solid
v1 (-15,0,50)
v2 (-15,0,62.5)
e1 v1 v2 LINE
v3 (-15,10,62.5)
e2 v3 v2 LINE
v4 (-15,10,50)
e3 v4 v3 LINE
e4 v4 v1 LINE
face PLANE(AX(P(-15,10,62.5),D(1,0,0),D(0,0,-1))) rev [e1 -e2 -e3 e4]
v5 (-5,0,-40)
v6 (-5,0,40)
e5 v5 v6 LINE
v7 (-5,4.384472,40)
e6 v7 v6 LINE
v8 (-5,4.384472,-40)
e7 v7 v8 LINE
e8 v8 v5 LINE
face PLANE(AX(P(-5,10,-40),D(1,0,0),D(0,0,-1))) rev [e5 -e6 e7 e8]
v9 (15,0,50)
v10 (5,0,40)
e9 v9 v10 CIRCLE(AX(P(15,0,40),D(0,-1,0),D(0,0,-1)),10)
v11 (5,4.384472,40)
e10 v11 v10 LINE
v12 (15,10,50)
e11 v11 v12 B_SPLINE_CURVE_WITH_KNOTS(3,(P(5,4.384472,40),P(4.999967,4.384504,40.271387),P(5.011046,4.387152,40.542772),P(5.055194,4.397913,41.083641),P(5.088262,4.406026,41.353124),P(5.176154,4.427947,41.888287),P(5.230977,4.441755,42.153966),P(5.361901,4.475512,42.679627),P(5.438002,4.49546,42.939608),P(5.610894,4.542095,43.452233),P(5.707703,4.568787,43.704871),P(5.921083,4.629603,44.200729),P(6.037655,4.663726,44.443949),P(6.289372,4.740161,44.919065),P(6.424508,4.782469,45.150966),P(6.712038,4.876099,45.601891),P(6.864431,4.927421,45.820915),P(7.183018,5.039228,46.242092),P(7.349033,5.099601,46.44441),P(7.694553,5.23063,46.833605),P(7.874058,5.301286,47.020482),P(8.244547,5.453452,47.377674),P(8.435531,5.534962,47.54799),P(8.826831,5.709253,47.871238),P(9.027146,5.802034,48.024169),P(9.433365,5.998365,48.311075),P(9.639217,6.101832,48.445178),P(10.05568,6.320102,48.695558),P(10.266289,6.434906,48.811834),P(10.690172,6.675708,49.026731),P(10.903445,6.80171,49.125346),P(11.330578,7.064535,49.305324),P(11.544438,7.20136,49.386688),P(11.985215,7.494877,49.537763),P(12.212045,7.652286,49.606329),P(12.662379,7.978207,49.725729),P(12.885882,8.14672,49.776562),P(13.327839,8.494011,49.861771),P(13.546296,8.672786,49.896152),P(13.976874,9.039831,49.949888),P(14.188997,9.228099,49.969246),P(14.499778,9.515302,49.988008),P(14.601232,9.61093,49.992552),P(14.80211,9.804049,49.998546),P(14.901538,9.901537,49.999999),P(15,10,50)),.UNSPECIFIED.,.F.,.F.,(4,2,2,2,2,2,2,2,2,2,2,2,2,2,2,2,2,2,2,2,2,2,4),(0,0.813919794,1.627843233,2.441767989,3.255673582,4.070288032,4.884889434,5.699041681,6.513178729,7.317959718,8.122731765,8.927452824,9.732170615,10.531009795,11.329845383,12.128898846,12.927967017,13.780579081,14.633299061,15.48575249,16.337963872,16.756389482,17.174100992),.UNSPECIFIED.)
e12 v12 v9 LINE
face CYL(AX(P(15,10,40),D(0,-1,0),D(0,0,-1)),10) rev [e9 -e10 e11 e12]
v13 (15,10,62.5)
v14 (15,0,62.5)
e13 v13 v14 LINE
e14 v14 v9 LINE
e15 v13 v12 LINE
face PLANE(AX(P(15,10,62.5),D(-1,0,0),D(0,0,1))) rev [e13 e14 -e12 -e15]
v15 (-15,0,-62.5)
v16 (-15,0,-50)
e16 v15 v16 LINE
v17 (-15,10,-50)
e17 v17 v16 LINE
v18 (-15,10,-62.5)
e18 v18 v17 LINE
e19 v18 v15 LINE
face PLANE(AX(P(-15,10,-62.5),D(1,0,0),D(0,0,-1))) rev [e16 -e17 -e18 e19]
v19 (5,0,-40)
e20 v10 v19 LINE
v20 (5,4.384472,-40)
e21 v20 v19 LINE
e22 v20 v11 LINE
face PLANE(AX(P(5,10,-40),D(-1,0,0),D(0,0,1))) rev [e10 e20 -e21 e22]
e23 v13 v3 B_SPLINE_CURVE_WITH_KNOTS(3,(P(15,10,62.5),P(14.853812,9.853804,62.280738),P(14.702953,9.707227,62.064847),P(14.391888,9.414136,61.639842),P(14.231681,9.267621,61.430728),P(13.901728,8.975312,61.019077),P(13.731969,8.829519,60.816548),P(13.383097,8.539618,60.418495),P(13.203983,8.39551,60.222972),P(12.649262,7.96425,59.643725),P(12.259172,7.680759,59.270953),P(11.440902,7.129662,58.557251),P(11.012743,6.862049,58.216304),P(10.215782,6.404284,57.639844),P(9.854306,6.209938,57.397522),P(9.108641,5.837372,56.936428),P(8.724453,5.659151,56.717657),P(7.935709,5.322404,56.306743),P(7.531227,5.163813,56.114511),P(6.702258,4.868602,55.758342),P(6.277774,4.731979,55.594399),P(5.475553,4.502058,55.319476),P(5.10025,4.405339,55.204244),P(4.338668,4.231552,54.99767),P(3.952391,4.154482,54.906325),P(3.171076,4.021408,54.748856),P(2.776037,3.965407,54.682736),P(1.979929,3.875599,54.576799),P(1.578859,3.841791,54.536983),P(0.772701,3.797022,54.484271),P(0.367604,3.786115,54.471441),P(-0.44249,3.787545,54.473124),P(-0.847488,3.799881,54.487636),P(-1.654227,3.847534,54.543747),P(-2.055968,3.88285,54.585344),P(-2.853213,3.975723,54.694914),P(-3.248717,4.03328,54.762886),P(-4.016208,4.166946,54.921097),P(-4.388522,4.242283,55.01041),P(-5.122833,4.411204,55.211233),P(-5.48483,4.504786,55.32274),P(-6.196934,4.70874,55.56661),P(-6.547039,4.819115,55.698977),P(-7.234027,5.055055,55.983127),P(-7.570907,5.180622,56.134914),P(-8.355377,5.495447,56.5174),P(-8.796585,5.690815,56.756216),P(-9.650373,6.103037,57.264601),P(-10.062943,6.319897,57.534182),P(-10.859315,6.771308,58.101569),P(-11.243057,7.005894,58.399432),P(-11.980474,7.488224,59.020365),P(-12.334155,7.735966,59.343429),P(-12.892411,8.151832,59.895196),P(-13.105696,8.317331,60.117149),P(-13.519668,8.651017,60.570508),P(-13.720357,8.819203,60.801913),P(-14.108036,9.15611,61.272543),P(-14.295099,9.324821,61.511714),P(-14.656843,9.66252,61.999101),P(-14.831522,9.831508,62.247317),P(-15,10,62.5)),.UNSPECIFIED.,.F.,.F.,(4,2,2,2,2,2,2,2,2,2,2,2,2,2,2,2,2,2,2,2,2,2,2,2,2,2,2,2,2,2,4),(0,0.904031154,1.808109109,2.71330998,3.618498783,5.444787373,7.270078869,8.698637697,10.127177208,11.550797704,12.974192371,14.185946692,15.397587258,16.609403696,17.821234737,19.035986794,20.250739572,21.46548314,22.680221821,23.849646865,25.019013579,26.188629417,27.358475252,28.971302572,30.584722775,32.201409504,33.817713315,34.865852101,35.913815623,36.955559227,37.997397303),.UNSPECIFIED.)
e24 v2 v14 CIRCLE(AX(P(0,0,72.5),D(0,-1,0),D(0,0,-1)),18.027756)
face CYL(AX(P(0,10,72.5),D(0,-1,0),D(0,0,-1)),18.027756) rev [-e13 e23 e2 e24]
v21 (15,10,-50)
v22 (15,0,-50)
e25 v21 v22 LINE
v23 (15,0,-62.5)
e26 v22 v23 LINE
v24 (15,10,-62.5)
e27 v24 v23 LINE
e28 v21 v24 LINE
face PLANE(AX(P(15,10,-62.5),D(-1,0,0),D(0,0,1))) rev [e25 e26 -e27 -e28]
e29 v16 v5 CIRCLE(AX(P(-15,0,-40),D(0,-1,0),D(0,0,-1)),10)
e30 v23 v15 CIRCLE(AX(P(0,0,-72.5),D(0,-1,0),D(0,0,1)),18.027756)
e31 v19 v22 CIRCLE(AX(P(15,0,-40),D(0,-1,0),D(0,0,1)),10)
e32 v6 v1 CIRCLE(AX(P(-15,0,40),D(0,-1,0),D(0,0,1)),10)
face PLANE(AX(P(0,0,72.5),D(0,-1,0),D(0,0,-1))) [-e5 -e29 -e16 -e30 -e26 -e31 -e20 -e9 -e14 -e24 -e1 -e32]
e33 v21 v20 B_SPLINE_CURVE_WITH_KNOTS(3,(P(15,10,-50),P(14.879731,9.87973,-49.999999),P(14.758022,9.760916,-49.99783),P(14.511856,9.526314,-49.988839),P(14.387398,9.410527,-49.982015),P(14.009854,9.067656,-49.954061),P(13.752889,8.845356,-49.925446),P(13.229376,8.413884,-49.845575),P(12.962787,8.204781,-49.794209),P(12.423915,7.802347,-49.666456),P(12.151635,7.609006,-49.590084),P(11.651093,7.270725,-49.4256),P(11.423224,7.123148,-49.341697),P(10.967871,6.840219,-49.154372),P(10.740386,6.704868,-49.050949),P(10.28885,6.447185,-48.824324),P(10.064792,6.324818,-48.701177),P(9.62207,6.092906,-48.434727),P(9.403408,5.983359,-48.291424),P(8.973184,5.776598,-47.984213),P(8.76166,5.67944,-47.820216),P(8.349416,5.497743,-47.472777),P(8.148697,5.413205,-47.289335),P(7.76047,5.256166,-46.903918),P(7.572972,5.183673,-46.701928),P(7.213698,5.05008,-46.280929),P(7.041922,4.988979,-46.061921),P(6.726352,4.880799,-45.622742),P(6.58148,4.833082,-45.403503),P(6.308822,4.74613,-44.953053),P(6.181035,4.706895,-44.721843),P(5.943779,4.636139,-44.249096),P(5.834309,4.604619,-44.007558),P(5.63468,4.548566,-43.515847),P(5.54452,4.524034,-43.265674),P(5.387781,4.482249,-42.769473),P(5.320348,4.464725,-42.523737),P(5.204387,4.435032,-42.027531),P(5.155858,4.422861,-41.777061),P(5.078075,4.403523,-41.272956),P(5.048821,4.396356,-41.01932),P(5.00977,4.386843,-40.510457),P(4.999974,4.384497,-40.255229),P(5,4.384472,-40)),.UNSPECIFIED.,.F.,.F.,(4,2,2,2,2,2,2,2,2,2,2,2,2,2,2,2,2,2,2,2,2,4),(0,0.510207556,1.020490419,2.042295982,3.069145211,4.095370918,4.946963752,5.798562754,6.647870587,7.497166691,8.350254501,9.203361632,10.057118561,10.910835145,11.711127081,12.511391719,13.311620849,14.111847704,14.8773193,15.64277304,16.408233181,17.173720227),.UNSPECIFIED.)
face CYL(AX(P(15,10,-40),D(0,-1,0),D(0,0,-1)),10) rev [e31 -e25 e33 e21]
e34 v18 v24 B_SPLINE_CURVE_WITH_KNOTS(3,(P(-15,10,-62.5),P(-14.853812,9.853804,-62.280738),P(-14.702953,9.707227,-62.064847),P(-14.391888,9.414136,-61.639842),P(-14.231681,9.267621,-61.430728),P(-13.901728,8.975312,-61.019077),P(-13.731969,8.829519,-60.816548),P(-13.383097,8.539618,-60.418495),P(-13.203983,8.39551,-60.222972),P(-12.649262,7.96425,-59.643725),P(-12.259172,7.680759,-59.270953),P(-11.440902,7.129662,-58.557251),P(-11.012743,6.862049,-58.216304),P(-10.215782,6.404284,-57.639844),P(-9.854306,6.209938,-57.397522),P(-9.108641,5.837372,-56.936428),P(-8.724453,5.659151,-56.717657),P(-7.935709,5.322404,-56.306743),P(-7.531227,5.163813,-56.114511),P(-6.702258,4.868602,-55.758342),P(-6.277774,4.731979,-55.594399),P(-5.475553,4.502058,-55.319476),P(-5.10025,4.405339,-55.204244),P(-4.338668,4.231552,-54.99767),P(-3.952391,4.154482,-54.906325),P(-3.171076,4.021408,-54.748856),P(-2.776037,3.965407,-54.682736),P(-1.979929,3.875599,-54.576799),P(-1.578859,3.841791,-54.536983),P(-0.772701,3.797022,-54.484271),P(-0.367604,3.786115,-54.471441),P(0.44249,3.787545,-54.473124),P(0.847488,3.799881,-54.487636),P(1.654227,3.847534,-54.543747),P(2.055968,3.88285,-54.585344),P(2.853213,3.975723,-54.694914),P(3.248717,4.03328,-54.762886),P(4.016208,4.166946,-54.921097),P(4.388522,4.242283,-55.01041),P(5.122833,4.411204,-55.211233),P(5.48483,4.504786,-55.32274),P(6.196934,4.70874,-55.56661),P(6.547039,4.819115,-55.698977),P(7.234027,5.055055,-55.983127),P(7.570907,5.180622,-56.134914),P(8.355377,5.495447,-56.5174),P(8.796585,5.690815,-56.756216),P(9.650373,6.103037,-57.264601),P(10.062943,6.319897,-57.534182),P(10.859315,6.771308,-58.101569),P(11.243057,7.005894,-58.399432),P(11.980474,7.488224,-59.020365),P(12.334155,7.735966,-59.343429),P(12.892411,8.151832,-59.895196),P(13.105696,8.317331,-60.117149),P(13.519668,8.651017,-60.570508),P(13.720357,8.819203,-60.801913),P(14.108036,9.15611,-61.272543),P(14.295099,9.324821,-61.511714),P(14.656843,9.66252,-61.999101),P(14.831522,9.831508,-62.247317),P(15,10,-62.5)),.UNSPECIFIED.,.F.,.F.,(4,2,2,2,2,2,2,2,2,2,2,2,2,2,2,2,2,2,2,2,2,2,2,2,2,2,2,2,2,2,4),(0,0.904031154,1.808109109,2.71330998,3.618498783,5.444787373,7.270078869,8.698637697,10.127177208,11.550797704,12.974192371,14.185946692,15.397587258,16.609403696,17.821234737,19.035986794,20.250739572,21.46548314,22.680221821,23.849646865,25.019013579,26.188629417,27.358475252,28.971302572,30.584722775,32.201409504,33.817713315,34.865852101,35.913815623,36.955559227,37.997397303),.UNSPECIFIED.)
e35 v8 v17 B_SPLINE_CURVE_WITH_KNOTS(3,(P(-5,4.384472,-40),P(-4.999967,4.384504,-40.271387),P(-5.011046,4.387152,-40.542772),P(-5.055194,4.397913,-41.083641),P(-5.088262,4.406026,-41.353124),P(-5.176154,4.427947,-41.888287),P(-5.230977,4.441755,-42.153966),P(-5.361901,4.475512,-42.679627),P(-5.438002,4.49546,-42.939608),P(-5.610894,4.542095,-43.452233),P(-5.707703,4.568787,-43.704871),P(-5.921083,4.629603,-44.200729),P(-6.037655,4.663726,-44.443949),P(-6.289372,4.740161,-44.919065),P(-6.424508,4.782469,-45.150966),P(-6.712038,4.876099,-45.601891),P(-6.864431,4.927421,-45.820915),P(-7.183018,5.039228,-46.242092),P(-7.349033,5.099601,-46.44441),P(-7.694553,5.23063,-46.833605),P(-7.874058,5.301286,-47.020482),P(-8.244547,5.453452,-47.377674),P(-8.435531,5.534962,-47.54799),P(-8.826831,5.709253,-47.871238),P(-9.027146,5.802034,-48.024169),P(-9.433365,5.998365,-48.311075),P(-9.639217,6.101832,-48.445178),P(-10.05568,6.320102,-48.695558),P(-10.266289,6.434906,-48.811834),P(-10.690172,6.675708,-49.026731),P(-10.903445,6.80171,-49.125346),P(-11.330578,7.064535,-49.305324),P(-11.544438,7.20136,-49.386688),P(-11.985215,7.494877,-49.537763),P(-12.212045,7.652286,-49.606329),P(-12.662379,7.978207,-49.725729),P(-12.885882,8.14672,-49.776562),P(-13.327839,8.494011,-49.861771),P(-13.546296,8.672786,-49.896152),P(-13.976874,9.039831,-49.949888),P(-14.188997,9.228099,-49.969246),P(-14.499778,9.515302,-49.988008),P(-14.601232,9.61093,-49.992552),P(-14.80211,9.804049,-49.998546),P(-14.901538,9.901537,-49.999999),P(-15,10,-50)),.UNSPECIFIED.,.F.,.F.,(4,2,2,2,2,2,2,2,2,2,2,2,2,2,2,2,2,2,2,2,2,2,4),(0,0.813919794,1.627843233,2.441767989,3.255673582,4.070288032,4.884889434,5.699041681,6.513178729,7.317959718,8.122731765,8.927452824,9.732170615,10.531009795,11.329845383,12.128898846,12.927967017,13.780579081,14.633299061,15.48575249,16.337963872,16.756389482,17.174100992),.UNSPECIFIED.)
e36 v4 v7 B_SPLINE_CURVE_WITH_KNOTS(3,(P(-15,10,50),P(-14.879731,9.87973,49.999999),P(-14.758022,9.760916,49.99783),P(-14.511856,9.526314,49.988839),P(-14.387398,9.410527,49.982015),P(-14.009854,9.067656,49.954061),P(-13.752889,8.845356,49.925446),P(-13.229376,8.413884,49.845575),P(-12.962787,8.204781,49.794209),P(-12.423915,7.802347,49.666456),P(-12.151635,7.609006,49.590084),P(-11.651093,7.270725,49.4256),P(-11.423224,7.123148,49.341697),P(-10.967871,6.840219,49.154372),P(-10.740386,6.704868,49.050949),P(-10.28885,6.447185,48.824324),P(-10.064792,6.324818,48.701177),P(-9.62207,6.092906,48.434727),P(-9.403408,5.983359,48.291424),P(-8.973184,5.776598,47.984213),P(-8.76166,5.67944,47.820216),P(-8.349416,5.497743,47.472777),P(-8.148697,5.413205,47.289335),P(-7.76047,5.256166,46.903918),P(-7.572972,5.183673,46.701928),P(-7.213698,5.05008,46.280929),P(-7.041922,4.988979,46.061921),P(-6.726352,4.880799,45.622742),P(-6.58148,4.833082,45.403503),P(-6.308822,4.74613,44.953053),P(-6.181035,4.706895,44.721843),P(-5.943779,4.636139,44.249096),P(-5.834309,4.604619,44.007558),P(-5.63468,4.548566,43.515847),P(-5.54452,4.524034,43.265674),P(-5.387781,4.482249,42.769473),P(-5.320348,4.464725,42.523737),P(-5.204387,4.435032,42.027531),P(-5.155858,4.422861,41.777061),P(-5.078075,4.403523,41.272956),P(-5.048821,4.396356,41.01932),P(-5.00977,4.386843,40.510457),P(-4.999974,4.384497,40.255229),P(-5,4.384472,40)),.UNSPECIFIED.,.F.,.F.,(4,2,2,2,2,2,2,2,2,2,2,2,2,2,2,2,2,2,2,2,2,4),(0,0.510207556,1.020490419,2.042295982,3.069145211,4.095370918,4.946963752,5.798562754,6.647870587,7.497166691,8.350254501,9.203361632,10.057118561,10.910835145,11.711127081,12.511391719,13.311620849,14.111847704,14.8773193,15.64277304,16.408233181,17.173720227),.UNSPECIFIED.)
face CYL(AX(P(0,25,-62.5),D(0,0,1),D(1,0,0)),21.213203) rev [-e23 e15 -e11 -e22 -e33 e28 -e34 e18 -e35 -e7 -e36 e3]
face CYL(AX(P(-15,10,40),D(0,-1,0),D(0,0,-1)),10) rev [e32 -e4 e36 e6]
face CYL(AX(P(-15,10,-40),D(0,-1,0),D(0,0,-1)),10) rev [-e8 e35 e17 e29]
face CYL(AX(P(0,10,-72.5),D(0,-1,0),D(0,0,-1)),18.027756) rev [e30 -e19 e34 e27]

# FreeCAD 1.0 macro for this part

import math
import FreeCAD as App
import Part
import Sketcher

V = App.Vector

doc = App.newDocument("Part")
body = doc.addObject("PartDesign::Body", "Body")

# Sketch on XZ plane
sketch1 = doc.addObject("Sketcher::SketchObject", "Sketch")
body.addObject(sketch1)
sketch1.AttachmentSupport = (doc.XZ_Plane, [""])
sketch1.MapMode = "FlatFace"
sketch1.addGeometry([
    Part.LineSegment(V(-15, -62, 0), V(-15, -50, 0)),  # 0
    Part.ArcOfCircle(Part.Circle(V(-15, -40, 0), V(0, 0, 1), 10), math.radians(-90), math.radians(0)),  # 1
    Part.LineSegment(V(-5, -40, 0), V(-5, 40, 0)),  # 2
    Part.ArcOfCircle(Part.Circle(V(-15, 40, 0), V(0, 0, 1), 10), math.radians(0), math.radians(90)),  # 3
    Part.LineSegment(V(-15, 50, 0), V(-15, 62, 0)),  # 4
    Part.ArcOfCircle(Part.Circle(V(0, 73, 0), V(0, 0, 1), 18), math.radians(-146), math.radians(-34)),  # 5
    Part.LineSegment(V(15, 62, 0), V(15, 50, 0)),  # 6
    Part.ArcOfCircle(Part.Circle(V(15, 40, 0), V(0, 0, 1), 10), math.radians(90), math.radians(180)),  # 7
    Part.LineSegment(V(5, 40, 0), V(5, -40, 0)),  # 8
    Part.ArcOfCircle(Part.Circle(V(15, -40, 0), V(0, 0, 1), 10), math.radians(180), math.radians(270)),  # 9
    Part.LineSegment(V(15, -50, 0), V(15, -62, 0)),  # 10
    Part.ArcOfCircle(Part.Circle(V(0, -73, 0), V(0, 0, 1), 18), math.radians(34), math.radians(146)),  # 11
], False)
sketch1.addConstraint([
    Sketcher.Constraint("Coincident", 0, 2, 1, 1),
    Sketcher.Constraint("Tangent", 1, 2, 2, 1),
    Sketcher.Constraint("Tangent", 2, 2, 3, 1),
    Sketcher.Constraint("Coincident", 3, 2, 4, 1),
    Sketcher.Constraint("Coincident", 4, 2, 5, 1),
    Sketcher.Constraint("Coincident", 5, 2, 6, 1),
    Sketcher.Constraint("Coincident", 6, 2, 7, 1),
    Sketcher.Constraint("Tangent", 7, 2, 8, 1),
    Sketcher.Constraint("Tangent", 8, 2, 9, 1),
    Sketcher.Constraint("Coincident", 9, 2, 10, 1),
    Sketcher.Constraint("Coincident", 10, 2, 11, 1),
    Sketcher.Constraint("Coincident", 11, 2, 0, 1),
    Sketcher.Constraint("Vertical", 0),
    Sketcher.Constraint("Vertical", 2),
    Sketcher.Constraint("Vertical", 4),
    Sketcher.Constraint("Vertical", 6),
    Sketcher.Constraint("Vertical", 8),
    Sketcher.Constraint("Vertical", 10),
    Sketcher.Constraint("Equal", 1, 3),
    Sketcher.Constraint("Equal", 3, 7),
    Sketcher.Constraint("Equal", 7, 9),
    Sketcher.Constraint("Equal", 5, 11),
    Sketcher.Constraint("Symmetric", 1, 3, 7, 3, -1, 1),
    Sketcher.Constraint("Symmetric", 5, 3, 11, 3, -1, 1),
    Sketcher.Constraint("Symmetric", 3, 2, 9, 2, -1, 1),
    Sketcher.Constraint("Symmetric", 4, 2, 5, 2, -2),
    Sketcher.Constraint("Symmetric", 0, 2, 9, 2, -2),
    Sketcher.Constraint("Vertical", 3, 3, 0, 2),
    Sketcher.Constraint("Radius", 1, 10.0),
    Sketcher.Constraint("DistanceY", 2, 1, 2, 2, 80.0),
    Sketcher.Constraint("DistanceY", 0, 1, 0, 2, 12.5),
    Sketcher.Constraint("DistanceX", 1, 3, -1, 1, 15.0),
    Sketcher.Constraint("DistanceY", 11, 3, 5, 3, 145.0),
])
pad1 = doc.addObject("PartDesign::Pad", "Pad")
body.addObject(pad1)
pad1.Profile = sketch1
pad1.Length = 10
pad1.Reversed = True

# Sketch on XY plane
sketch2 = doc.addObject("Sketcher::SketchObject", "Sketch001")
body.addObject(sketch2)
sketch2.AttachmentSupport = (doc.XY_Plane, [""])
sketch2.MapMode = "FlatFace"
sketch2.addGeometry([
    Part.ArcOfCircle(Part.Circle(V(0, 25, 0), V(0, 0, 1), 21), math.radians(-135), math.radians(-90)),
    Part.ArcOfCircle(Part.Circle(V(0, 25, 0), V(0, 0, 1), 21), math.radians(-90), math.radians(-45)),
    Part.LineSegment(V(15, 10, 0), V(-15, 10, 0)),
], False)
sketch2.addConstraint([
    Sketcher.Constraint("Tangent", 0, 2, 1, 1),
    Sketcher.Constraint("Coincident", 1, 2, 2, 1),
    Sketcher.Constraint("Coincident", 2, 2, 0, 1),
    Sketcher.Constraint("Horizontal", 2),
    Sketcher.Constraint("Equal", 0, 1),
    Sketcher.Constraint("PointOnObject", 0, 3, -2),
    Sketcher.Constraint("PointOnObject", 0, 2, -2),
    Sketcher.Constraint("DistanceX", 2, 2, 2, 1, 30.0),
    Sketcher.Constraint("DistanceY", -1, 1, 0, 3, 25.0),
    Sketcher.Constraint("DistanceY", -1, 1, 1, 2, 10.0),
])
pocket1 = doc.addObject("PartDesign::Pocket", "Pocket")
body.addObject(pocket1)
pocket1.Profile = sketch2
pocket1.Type = "ThroughAll"
pocket1.Midplane = True

doc.recompute()
